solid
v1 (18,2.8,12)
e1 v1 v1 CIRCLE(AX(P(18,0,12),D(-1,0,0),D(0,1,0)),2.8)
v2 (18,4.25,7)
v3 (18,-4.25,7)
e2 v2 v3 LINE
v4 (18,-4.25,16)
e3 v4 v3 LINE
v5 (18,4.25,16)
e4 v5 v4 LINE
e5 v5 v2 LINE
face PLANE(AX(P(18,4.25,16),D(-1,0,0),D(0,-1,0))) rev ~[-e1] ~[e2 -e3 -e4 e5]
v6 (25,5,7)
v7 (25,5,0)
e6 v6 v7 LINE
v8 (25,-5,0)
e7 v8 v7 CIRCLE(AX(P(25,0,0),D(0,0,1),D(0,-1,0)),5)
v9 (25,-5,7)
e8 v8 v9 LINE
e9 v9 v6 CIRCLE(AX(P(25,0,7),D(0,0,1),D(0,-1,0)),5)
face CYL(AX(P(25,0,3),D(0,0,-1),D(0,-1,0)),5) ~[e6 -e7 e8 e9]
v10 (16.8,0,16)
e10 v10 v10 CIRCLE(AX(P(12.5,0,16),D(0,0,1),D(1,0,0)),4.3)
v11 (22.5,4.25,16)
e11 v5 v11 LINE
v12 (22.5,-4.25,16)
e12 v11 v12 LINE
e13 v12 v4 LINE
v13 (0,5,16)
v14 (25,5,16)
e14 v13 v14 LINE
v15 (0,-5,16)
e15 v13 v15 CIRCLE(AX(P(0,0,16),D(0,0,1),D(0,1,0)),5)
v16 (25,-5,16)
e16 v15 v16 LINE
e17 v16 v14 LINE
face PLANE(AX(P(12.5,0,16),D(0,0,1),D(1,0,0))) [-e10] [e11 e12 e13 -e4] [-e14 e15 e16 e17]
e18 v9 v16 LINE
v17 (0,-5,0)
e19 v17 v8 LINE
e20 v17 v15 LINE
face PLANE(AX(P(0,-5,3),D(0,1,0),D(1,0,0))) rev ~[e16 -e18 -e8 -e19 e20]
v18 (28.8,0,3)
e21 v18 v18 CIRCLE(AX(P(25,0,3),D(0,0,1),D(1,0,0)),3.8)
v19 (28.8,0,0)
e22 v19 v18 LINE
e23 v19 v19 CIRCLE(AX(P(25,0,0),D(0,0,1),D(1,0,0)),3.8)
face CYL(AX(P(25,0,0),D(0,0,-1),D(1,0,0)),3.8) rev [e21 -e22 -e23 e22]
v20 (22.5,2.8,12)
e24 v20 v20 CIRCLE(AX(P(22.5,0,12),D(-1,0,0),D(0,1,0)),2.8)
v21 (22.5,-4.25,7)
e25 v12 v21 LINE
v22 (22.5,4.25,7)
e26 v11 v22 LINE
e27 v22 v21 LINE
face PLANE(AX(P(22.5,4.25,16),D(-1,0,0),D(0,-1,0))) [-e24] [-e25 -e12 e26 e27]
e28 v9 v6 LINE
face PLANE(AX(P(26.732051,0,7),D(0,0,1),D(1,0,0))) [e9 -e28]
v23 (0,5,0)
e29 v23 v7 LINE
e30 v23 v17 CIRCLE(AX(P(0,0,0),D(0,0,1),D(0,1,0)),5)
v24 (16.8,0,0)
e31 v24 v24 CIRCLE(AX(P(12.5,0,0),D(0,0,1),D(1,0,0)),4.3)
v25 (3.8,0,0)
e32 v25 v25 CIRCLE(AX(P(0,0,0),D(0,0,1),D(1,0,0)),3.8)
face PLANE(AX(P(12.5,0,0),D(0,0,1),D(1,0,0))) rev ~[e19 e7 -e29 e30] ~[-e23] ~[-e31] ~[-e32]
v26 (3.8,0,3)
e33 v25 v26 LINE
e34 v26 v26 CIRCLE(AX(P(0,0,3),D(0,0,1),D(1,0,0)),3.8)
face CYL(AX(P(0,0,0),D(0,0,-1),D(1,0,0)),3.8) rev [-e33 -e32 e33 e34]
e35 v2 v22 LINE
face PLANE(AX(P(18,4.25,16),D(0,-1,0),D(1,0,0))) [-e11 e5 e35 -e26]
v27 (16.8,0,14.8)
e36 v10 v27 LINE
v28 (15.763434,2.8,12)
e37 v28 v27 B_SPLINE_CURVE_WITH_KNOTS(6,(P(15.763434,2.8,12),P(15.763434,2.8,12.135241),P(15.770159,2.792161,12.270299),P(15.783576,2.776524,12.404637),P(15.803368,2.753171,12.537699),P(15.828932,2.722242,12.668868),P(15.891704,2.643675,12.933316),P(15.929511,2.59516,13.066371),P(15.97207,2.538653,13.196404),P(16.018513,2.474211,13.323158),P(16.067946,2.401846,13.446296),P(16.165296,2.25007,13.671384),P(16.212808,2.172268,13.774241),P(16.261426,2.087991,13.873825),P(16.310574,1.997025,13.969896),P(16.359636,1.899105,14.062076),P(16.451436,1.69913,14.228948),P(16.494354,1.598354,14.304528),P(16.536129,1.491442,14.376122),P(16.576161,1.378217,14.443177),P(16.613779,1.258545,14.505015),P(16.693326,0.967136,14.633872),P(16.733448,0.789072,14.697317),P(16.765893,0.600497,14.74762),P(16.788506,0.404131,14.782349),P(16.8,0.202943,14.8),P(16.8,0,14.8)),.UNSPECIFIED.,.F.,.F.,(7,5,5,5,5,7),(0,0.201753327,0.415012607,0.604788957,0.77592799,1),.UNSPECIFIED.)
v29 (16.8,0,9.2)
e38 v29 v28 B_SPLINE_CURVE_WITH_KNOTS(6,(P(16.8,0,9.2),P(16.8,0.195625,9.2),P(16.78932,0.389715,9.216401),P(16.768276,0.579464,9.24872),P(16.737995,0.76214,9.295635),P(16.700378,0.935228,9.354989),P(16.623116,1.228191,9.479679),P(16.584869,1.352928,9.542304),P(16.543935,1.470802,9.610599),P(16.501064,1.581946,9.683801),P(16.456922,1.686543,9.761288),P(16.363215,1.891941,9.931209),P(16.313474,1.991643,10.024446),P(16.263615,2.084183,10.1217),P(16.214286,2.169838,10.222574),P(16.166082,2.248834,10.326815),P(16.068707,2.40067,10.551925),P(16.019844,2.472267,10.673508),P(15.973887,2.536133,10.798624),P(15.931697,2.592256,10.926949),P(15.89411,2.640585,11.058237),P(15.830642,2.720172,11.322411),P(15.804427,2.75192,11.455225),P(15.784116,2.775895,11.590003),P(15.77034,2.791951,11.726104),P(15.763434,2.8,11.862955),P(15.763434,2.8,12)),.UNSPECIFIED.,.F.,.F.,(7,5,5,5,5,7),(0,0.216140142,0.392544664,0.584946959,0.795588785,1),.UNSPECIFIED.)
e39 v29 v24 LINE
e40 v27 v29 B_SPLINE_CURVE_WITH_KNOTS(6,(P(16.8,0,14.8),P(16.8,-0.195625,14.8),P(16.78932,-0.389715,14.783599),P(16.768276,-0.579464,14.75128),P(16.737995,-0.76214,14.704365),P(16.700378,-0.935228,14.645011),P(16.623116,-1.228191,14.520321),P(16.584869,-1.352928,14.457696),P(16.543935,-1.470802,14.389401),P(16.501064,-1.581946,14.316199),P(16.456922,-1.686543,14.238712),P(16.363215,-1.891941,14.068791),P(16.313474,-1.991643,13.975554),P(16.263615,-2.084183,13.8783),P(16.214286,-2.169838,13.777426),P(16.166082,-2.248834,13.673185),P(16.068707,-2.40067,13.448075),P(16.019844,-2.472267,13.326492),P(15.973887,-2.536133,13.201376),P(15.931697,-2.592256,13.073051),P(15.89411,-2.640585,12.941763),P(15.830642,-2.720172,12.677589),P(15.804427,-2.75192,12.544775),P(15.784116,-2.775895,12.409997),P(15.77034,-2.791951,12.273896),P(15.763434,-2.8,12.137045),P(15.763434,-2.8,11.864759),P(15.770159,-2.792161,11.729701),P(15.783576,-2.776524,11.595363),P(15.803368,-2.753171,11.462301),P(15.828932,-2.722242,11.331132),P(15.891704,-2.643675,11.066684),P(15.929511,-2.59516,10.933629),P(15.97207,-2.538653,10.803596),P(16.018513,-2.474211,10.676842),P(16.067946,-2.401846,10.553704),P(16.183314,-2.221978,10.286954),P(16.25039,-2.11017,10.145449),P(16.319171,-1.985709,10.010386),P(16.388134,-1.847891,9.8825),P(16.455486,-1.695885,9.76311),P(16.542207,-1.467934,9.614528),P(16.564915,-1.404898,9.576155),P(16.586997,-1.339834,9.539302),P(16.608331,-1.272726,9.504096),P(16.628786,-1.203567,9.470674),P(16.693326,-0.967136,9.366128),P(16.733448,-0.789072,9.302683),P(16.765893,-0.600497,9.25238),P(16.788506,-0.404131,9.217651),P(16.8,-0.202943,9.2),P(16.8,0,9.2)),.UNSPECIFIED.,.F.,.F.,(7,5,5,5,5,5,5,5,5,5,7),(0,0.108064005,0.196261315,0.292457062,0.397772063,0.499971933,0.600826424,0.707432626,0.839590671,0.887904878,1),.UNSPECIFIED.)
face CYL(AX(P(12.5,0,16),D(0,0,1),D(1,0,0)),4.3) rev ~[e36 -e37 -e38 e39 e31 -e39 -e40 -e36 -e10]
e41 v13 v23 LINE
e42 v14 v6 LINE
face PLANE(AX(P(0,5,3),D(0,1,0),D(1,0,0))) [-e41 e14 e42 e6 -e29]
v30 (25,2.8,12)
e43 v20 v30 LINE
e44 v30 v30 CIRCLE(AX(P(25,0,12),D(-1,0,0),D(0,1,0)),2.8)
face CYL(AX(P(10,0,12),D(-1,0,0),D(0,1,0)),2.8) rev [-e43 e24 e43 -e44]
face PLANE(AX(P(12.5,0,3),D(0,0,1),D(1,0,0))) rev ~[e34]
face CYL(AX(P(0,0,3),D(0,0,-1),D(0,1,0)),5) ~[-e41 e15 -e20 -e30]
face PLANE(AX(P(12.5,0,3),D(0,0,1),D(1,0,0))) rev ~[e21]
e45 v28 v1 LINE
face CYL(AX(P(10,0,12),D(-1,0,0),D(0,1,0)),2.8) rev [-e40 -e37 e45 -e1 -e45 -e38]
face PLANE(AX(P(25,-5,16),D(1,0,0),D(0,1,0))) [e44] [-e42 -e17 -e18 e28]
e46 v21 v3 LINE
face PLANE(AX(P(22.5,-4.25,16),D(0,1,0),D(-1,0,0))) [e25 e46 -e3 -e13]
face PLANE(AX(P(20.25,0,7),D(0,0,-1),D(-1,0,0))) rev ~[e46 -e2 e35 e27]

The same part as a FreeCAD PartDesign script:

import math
import FreeCAD as App
import Part
import Sketcher
from FreeCAD import Vector
Q = App.Units.Quantity

doc = App.newDocument("Part")
body = doc.addObject("PartDesign::Body", "Body")

# Sketch on XY plane
sketch1 = body.newObject("Sketcher::SketchObject", "Sketch")
sketch1.AttachmentSupport = (doc.getObject("XY_Plane"), [""])
sketch1.MapMode = "FlatFace"
sketch1.addGeometry([
    Part.ArcOfCircle(Part.Circle(Vector(0, 0, 0), Vector(0, 0, 1), 5), math.radians(90), math.radians(270)),  # 0
    Part.LineSegment(Vector(0, -5, 0), Vector(25, -5, 0)),  # 1
    Part.ArcOfCircle(Part.Circle(Vector(25, 0, 0), Vector(0, 0, 1), 5), math.radians(-90), math.radians(90)),  # 2
    Part.LineSegment(Vector(25, 5, 0), Vector(0, 5, 0)),  # 3
    Part.Circle(Vector(0, 0, 0), Vector(0, 0, 1), 3.8),  # 4
    Part.Circle(Vector(25, 0, 0), Vector(0, 0, 1), 3.8),  # 5
], False)
sketch1.addConstraint([
    Sketcher.Constraint("Tangent", 0, 2, 1, 1),
    Sketcher.Constraint("Tangent", 1, 2, 2, 1),
    Sketcher.Constraint("Tangent", 2, 2, 3, 1),
    Sketcher.Constraint("Tangent", 3, 2, 0, 1),
    Sketcher.Constraint("Horizontal", 1),
    Sketcher.Constraint("Horizontal", 3),
    Sketcher.Constraint("Coincident", 0, 3, -1, 1),
    Sketcher.Constraint("Coincident", 4, 3, -1, 1),
    Sketcher.Constraint("Coincident", 5, 3, 2, 3),
    Sketcher.Constraint("Equal", 4, 5),
    Sketcher.Constraint("Radius", 0, Q("5 mm")),
    Sketcher.Constraint("Diameter", 4, Q("7.6 mm")),
    Sketcher.Constraint("DistanceX", 1, 1, 1, 2, Q("25 mm")),
])
pad1 = body.newObject("PartDesign::Pad", "Pad")
pad1.Profile = sketch1
pad1.Length = 3

# Sketch on XY plane
sketch2 = body.newObject("Sketcher::SketchObject", "Sketch001")
sketch2.AttachmentSupport = (doc.getObject("XY_Plane"), [""])
sketch2.MapMode = "FlatFace"
sketch2.AttachmentOffset = App.Placement(Vector(0, 0, 3), App.Rotation())
sketch2.addGeometry([
    Part.ArcOfCircle(Part.Circle(Vector(0, 0, 0), Vector(0, 0, 1), 5), math.radians(90), math.radians(270)),
    Part.LineSegment(Vector(0, -5, 0), Vector(25, -5, 0)),
    Part.ArcOfCircle(Part.Circle(Vector(25, 0, 0), Vector(0, 0, 1), 5), math.radians(-90), math.radians(90)),
    Part.LineSegment(Vector(25, 5, 0), Vector(0, 5, 0)),
], False)
sketch2.addConstraint([
    Sketcher.Constraint("Tangent", 0, 2, 1, 1),
    Sketcher.Constraint("Tangent", 1, 2, 2, 1),
    Sketcher.Constraint("Tangent", 2, 2, 3, 1),
    Sketcher.Constraint("Tangent", 3, 2, 0, 1),
    Sketcher.Constraint("Horizontal", 1),
    Sketcher.Constraint("Horizontal", 3),
    Sketcher.Constraint("Coincident", 0, 3, -1, 1),
    Sketcher.Constraint("Radius", 0, Q("5 mm")),
    Sketcher.Constraint("DistanceX", 1, 1, 1, 2, Q("25 mm")),
])
pad2 = body.newObject("PartDesign::Pad", "Pad001")
pad2.Profile = sketch2
pad2.Length = 13

# Sketch on XY plane
sketch3 = body.newObject("Sketcher::SketchObject", "Sketch002")
sketch3.AttachmentSupport = (doc.getObject("XY_Plane"), [""])
sketch3.MapMode = "FlatFace"
sketch3.AttachmentOffset = App.Placement(Vector(0, 0, 16), App.Rotation())
sketch3.addGeometry(Part.Circle(Vector(12.5, 0, 0), Vector(0, 0, 1), 4.3), False)
sketch3.addConstraint([
    Sketcher.Constraint("PointOnObject", 0, 3, -1),
    Sketcher.Constraint("Diameter", 0, Q("8.6 mm")),
    Sketcher.Constraint("DistanceX", -1, 1, 0, 3, Q("12.5 mm")),
])
pocket1 = body.newObject("PartDesign::Pocket", "Pocket")
pocket1.Profile = sketch3
pocket1.Type = "ThroughAll"

# Sketch on XY plane
sketch4 = body.newObject("Sketcher::SketchObject", "Sketch003")
sketch4.AttachmentSupport = (doc.getObject("XY_Plane"), [""])
sketch4.MapMode = "FlatFace"
sketch4.AttachmentOffset = App.Placement(Vector(0, 0, 16), App.Rotation())
sketch4.addGeometry([
    Part.LineSegment(Vector(22.5, 4.25, 0), Vector(18, 4.25, 0)),  # 0
    Part.LineSegment(Vector(18, 4.25, 0), Vector(18, -4.25, 0)),  # 1
    Part.LineSegment(Vector(18, -4.25, 0), Vector(22.5, -4.25, 0)),  # 2
    Part.LineSegment(Vector(22.5, -4.25, 0), Vector(22.5, 4.25, 0)),  # 3
    Part.ArcOfCircle(Part.Circle(Vector(25, 0, 0), Vector(0, 0, 1), 5), math.radians(-90), math.radians(90)),  # 4
    Part.LineSegment(Vector(25, 5, 0), Vector(25, -5, 0)),  # 5
], False)
sketch4.addConstraint([
    Sketcher.Constraint("Coincident", 0, 2, 1, 1),
    Sketcher.Constraint("Coincident", 1, 2, 2, 1),
    Sketcher.Constraint("Coincident", 2, 2, 3, 1),
    Sketcher.Constraint("Coincident", 3, 2, 0, 1),
    Sketcher.Constraint("Coincident", 4, 1, 5, 2),
    Sketcher.Constraint("Coincident", 5, 1, 4, 2),
    Sketcher.Constraint("Horizontal", 0),
    Sketcher.Constraint("Vertical", 1),
    Sketcher.Constraint("Horizontal", 2),
    Sketcher.Constraint("Vertical", 3),
    Sketcher.Constraint("Vertical", 5),
    Sketcher.Constraint("PointOnObject", 4, 3, -1),
    Sketcher.Constraint("Radius", 4, Q("5 mm")),
    Sketcher.Constraint("DistanceX", 0, 2, 0, 1, Q("4.5 mm")),
    Sketcher.Constraint("DistanceY", 1, 2, 1, 1, Q("8.5 mm")),
    Sketcher.Constraint("DistanceX", -1, 1, 4, 3, Q("25 mm")),
    Sketcher.Constraint("DistanceX", -1, 1, 0, 2, Q("18 mm")),
    Sketcher.Constraint("DistanceX", -1, 1, 4, 1, Q("25 mm")),
    Sketcher.Constraint("DistanceY", -1, 1, 0, 2, Q("4.25 mm")),
])
pocket2 = body.newObject("PartDesign::Pocket", "Pocket001")
pocket2.Profile = sketch4
pocket2.Length = 9

# Sketch on YZ plane
sketch5 = body.newObject("Sketcher::SketchObject", "Sketch004")
sketch5.AttachmentSupport = (doc.getObject("YZ_Plane"), [""])
sketch5.MapMode = "FlatFace"
sketch5.AttachmentOffset = App.Placement(Vector(0, 0, 10), App.Rotation())
sketch5.addGeometry(Part.Circle(Vector(0, 12, 0), Vector(0, 0, 1), 2.8), False)
sketch5.addConstraint([
    Sketcher.Constraint("PointOnObject", 0, 3, -2),
    Sketcher.Constraint("Diameter", 0, Q("5.6 mm")),
    Sketcher.Constraint("DistanceY", -1, 1, 0, 3, Q("12 mm")),
])
pocket3 = body.newObject("PartDesign::Pocket", "Pocket002")
pocket3.Profile = sketch5
pocket3.Type = "ThroughAll"
pocket3.Reversed = True

doc.recompute()
